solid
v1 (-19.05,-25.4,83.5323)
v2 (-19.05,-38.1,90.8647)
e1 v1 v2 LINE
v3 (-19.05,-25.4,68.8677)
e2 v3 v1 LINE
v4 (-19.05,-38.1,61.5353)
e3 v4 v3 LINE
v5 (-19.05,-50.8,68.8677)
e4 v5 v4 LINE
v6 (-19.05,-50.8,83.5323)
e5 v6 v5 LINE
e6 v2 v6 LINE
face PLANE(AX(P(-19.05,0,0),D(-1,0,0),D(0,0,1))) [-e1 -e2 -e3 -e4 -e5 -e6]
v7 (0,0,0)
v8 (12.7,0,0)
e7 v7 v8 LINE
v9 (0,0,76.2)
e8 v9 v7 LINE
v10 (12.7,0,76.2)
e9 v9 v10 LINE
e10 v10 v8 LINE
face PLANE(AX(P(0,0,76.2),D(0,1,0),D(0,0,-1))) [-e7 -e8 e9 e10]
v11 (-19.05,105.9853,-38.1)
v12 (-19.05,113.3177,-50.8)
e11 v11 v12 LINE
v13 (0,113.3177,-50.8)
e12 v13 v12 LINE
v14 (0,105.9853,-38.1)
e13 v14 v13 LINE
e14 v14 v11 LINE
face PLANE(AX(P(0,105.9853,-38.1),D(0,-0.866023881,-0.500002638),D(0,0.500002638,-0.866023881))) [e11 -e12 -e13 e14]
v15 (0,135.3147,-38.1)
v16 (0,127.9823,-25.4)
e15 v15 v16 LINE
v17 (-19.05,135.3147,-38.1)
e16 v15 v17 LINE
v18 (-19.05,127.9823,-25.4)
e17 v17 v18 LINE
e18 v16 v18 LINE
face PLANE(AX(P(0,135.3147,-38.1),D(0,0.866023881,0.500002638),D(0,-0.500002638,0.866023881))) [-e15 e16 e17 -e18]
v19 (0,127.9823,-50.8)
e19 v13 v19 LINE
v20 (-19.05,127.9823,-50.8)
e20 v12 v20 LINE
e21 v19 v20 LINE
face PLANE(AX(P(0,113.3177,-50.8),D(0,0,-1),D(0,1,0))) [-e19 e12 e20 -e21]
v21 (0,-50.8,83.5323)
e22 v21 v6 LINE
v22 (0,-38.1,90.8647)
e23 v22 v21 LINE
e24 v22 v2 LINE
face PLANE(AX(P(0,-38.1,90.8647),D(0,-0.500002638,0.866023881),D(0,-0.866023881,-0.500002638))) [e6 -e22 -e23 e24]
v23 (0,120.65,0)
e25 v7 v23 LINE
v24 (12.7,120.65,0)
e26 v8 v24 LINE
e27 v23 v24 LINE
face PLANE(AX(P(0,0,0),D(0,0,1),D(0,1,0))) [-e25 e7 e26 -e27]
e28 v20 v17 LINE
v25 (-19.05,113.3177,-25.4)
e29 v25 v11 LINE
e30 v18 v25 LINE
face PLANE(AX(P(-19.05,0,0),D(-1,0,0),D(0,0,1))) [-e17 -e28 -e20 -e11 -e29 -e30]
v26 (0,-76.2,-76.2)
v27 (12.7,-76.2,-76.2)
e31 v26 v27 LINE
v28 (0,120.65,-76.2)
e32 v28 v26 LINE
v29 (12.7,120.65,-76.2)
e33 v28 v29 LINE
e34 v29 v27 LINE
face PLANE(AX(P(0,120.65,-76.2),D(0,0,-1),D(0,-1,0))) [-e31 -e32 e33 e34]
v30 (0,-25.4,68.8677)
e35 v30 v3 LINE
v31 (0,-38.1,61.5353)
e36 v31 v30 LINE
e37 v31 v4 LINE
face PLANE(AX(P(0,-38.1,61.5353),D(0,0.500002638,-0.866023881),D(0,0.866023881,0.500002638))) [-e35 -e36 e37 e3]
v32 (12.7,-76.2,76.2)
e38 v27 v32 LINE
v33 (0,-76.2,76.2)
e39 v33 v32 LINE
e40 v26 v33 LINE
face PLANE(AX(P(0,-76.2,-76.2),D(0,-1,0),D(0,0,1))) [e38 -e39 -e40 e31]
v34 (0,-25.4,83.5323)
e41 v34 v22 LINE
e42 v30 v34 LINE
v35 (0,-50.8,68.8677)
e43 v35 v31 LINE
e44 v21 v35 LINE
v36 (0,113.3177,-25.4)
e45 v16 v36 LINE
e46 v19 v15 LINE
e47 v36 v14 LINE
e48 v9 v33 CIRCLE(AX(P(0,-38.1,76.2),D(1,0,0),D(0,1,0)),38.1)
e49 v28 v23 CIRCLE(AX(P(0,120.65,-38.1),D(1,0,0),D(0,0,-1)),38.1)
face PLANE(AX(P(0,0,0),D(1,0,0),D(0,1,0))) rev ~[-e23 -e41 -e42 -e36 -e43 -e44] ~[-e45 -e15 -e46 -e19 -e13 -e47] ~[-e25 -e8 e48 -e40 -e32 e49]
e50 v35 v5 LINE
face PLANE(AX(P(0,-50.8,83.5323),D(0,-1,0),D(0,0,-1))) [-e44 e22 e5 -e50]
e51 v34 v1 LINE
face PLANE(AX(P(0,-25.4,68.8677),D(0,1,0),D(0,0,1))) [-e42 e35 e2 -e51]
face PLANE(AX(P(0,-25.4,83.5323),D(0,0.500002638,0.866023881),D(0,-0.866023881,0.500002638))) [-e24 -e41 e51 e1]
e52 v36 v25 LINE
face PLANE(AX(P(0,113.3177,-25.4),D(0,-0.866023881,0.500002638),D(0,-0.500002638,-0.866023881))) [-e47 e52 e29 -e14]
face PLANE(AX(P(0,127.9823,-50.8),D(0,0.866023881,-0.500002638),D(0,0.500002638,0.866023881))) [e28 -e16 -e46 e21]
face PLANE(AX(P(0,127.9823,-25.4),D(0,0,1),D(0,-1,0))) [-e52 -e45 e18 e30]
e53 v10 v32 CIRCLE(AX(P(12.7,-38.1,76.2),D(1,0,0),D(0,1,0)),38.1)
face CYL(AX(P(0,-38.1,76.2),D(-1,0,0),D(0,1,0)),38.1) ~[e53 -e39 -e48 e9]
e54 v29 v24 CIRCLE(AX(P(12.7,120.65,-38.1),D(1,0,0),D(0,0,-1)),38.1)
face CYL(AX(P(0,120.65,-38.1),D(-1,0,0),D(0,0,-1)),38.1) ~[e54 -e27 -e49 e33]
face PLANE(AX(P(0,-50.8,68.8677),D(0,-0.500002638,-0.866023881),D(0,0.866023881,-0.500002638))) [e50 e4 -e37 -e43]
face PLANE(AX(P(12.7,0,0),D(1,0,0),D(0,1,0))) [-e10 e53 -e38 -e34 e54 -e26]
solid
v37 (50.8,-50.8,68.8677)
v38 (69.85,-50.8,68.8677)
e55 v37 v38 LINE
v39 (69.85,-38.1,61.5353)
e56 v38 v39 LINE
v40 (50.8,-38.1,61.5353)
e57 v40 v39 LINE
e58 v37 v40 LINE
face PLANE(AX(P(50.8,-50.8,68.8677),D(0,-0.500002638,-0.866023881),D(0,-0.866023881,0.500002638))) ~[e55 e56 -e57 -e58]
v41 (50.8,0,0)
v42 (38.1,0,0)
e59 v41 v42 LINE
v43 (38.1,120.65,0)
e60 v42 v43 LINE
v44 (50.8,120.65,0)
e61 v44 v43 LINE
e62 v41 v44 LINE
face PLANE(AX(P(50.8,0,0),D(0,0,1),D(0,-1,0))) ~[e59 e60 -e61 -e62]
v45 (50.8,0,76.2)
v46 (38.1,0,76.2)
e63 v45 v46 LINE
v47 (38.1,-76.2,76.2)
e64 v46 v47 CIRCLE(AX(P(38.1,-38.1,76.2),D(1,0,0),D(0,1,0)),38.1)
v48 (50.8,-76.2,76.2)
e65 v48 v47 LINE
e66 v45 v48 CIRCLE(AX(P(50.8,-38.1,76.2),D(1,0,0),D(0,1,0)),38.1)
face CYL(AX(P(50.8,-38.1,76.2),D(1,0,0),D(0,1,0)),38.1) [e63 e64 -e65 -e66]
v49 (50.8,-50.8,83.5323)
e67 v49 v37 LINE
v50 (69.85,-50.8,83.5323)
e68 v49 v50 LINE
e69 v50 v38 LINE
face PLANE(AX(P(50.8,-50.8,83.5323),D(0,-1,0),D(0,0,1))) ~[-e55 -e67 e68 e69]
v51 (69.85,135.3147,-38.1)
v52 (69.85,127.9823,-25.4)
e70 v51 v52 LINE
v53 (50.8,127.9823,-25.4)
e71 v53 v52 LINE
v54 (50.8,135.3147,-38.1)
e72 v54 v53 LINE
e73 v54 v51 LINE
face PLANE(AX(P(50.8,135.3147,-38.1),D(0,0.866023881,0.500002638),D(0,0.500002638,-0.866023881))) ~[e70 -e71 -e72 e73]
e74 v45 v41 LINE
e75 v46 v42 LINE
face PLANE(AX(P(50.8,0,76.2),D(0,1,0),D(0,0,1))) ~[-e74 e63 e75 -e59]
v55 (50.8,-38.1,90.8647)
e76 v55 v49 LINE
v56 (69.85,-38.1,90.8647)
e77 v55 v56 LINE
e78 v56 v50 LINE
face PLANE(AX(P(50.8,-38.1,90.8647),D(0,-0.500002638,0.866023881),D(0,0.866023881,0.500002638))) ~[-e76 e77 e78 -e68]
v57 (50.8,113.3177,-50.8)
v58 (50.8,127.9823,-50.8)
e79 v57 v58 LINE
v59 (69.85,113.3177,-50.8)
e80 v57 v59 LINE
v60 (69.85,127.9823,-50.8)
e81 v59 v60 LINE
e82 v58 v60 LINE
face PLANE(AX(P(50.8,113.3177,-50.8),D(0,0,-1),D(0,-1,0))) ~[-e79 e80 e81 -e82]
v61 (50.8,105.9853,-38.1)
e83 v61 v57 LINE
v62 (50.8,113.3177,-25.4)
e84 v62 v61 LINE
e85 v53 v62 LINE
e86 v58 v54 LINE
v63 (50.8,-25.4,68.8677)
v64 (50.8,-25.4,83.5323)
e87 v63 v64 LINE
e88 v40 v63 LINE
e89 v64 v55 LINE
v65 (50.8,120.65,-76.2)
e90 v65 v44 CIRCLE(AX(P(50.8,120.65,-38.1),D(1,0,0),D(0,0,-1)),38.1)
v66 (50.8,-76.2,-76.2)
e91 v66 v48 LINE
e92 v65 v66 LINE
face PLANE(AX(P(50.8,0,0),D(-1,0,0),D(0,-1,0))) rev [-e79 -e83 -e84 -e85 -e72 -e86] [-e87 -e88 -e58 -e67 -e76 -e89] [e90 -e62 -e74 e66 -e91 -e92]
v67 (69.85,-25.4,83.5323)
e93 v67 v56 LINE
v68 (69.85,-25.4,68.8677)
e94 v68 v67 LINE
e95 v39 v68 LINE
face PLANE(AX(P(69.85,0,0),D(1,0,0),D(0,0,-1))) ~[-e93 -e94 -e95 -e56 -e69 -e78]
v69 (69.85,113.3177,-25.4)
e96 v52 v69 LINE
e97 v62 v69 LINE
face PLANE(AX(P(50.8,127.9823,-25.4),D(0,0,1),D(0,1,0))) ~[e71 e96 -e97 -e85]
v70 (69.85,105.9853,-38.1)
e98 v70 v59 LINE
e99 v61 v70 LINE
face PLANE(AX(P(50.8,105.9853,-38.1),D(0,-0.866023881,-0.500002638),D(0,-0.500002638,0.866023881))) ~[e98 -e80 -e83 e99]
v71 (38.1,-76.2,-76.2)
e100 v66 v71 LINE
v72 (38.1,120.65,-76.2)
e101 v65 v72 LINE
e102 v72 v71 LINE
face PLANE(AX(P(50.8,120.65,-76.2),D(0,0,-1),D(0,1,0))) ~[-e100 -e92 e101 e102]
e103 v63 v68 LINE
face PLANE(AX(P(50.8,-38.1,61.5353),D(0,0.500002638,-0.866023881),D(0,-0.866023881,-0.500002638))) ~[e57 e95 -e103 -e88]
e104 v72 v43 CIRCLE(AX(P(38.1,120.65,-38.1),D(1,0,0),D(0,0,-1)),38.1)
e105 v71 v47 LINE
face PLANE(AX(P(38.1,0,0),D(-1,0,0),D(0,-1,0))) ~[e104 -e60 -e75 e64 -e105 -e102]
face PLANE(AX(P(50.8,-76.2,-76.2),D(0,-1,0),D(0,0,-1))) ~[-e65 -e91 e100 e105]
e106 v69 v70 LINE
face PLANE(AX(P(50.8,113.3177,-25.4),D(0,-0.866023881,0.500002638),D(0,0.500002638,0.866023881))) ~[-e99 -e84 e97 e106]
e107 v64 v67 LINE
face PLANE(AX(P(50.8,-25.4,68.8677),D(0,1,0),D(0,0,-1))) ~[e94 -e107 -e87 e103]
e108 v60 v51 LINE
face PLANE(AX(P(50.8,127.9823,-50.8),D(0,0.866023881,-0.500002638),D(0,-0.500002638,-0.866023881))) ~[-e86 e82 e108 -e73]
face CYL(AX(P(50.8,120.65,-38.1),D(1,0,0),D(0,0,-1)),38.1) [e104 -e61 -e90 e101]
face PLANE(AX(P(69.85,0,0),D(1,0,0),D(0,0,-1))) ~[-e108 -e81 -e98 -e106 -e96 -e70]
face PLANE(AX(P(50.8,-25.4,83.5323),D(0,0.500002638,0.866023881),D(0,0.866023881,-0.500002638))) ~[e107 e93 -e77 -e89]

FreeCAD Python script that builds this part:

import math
import FreeCAD as App
import Part
import Sketcher
Q = App.Units.Quantity

doc = App.newDocument("Part")
body = doc.addObject("PartDesign::Body", "Body")
body.AllowCompound = True

sketch1 = body.newObject("Sketcher::SketchObject", "Sketch")
sketch1.AttachmentSupport = (doc.getObject("YZ_Plane"), [""])
sketch1.MapMode = "FlatFace"
sketch1.addGeometry([
    Part.LineSegment(App.Vector(-76, -76, 0), App.Vector(121, -76, 0)),
    Part.ArcOfCircle(Part.Circle(App.Vector(121, -38, 0), App.Vector(0, 0, 1), 38), math.radians(-90), math.radians(90)),
    Part.LineSegment(App.Vector(121, 0, 0), App.Vector(0, 0, 0)),
    Part.LineSegment(App.Vector(0, 0, 0), App.Vector(0, 76, 0)),
    Part.ArcOfCircle(Part.Circle(App.Vector(-38, 76, 0), App.Vector(0, 0, 1), 38), math.radians(0), math.radians(180)),
    Part.LineSegment(App.Vector(-76, 76, 0), App.Vector(-76, -76, 0)),
], False)
sketch1.addConstraint([
    Sketcher.Constraint("Tangent", 0, 2, 1, 1),
    Sketcher.Constraint("Tangent", 1, 2, 2, 1),
    Sketcher.Constraint("Coincident", 2, 2, 3, 1),
    Sketcher.Constraint("Tangent", 3, 2, 4, 1),
    Sketcher.Constraint("Tangent", 4, 2, 5, 1),
    Sketcher.Constraint("Coincident", 5, 2, 0, 1),
    Sketcher.Constraint("Horizontal", 0),
    Sketcher.Constraint("Horizontal", 2),
    Sketcher.Constraint("Vertical", 3),
    Sketcher.Constraint("Vertical", 5),
    Sketcher.Constraint("Coincident", 2, 2, -1, 1),
    Sketcher.Constraint("Equal", 1, 4),
    Sketcher.Constraint("Radius", 1, Q("1.5 in")),
    Sketcher.Constraint("DistanceY", 3, 1, 3, 2, Q("3 in")),
    Sketcher.Constraint("DistanceX", 2, 2, 2, 1, Q("4.75 in")),
])
pad1 = body.newObject("PartDesign::Pad", "Pad")
pad1.Profile = sketch1
pad1.Length = Q("0.5 in")

sketch2 = body.newObject("Sketcher::SketchObject", "Sketch001")
sketch2.AttachmentSupport = (doc.getObject("YZ_Plane"), [""])
sketch2.MapMode = "FlatFace"
sketch2.addGeometry([
    Part.LineSegment(App.Vector(113, -51, 0), App.Vector(106, -38, 0)),
    Part.LineSegment(App.Vector(106, -38, 0), App.Vector(113, -25, 0)),
    Part.LineSegment(App.Vector(113, -25, 0), App.Vector(128, -25, 0)),
    Part.LineSegment(App.Vector(128, -25, 0), App.Vector(135, -38, 0)),
    Part.LineSegment(App.Vector(135, -38, 0), App.Vector(128, -51, 0)),
    Part.LineSegment(App.Vector(128, -51, 0), App.Vector(113, -51, 0)),
    Part.LineSegment(App.Vector(-25, 69, 0), App.Vector(-38, 62, 0)),
    Part.LineSegment(App.Vector(-38, 62, 0), App.Vector(-51, 69, 0)),
    Part.LineSegment(App.Vector(-51, 69, 0), App.Vector(-51, 84, 0)),
    Part.LineSegment(App.Vector(-51, 84, 0), App.Vector(-38, 91, 0)),
    Part.LineSegment(App.Vector(-38, 91, 0), App.Vector(-25, 84, 0)),
    Part.LineSegment(App.Vector(-25, 84, 0), App.Vector(-25, 69, 0)),
], False)
sketch2.addConstraint([
    Sketcher.Constraint("Coincident", 0, 2, 1, 1),
    Sketcher.Constraint("Coincident", 1, 2, 2, 1),
    Sketcher.Constraint("Coincident", 2, 2, 3, 1),
    Sketcher.Constraint("Coincident", 3, 2, 4, 1),
    Sketcher.Constraint("Coincident", 4, 2, 5, 1),
    Sketcher.Constraint("Coincident", 5, 2, 0, 1),
    Sketcher.Constraint("Coincident", 6, 2, 7, 1),
    Sketcher.Constraint("Coincident", 7, 2, 8, 1),
    Sketcher.Constraint("Coincident", 8, 2, 9, 1),
    Sketcher.Constraint("Coincident", 9, 2, 10, 1),
    Sketcher.Constraint("Coincident", 10, 2, 11, 1),
    Sketcher.Constraint("Coincident", 11, 2, 6, 1),
    Sketcher.Constraint("Horizontal", 2),
    Sketcher.Constraint("Horizontal", 5),
    Sketcher.Constraint("Vertical", 8),
    Sketcher.Constraint("Vertical", 11),
    Sketcher.Constraint("Parallel", 0, 3),
    Sketcher.Constraint("Parallel", 1, 4),
    Sketcher.Constraint("Perpendicular", 3, 6),
    Sketcher.Constraint("Perpendicular", 4, 7),
    Sketcher.Constraint("Parallel", 6, 9),
    Sketcher.Constraint("Parallel", 7, 10),
    Sketcher.Constraint("Horizontal", 0, 2, 3, 2),
    Sketcher.Constraint("Horizontal", 8, 2, 10, 2),
    Sketcher.Constraint("Horizontal", 7, 2, 11, 2),
    Sketcher.Constraint("Vertical", 2, 2, 4, 2),
    Sketcher.Constraint("Vertical", 1, 2, 5, 2),
    Sketcher.Constraint("Equal", 5, 8),
    Sketcher.Constraint("Equal", 4, 6),
    Sketcher.Constraint("DistanceY", 1, 2, -1, 1, Q("1 in")),
    Sketcher.Constraint("DistanceX", 10, 2, -1, 1, Q("1 in")),
    Sketcher.Constraint("DistanceY", 4, 2, 2, 2, Q("1 in")),
    Sketcher.Constraint("Angle", 0, Q("120.0002 deg")),
    Sketcher.Constraint("DistanceX", 2, 1, 2, 2, 14.6646),
    Sketcher.Constraint("DistanceX", -1, 1, 0, 2, 105.9853),
    Sketcher.Constraint("DistanceY", -1, 1, 6, 2, 61.5353),
])
pad2 = body.newObject("PartDesign::Pad", "Pad001")
pad2.Profile = sketch2
pad2.Length = Q("0.75 in")
pad2.Reversed = True
doc.recompute()

datumplane = body.newObject("PartDesign::Plane", "DatumPlane")
datumplane.AttachmentSupport = (doc.getObject("YZ_Plane"), [""])
datumplane.MapMode = "FlatFace"
datumplane.AttachmentOffset = App.Placement(App.Vector(0, 0, 1 * 25.4), App.Rotation())
mirrored = body.newObject("PartDesign::Mirrored", "Mirrored")
mirrored.TransformMode = "Transform body"
mirrored.MirrorPlane = (datumplane, [""])
body.Tip = mirrored

doc.recompute()
